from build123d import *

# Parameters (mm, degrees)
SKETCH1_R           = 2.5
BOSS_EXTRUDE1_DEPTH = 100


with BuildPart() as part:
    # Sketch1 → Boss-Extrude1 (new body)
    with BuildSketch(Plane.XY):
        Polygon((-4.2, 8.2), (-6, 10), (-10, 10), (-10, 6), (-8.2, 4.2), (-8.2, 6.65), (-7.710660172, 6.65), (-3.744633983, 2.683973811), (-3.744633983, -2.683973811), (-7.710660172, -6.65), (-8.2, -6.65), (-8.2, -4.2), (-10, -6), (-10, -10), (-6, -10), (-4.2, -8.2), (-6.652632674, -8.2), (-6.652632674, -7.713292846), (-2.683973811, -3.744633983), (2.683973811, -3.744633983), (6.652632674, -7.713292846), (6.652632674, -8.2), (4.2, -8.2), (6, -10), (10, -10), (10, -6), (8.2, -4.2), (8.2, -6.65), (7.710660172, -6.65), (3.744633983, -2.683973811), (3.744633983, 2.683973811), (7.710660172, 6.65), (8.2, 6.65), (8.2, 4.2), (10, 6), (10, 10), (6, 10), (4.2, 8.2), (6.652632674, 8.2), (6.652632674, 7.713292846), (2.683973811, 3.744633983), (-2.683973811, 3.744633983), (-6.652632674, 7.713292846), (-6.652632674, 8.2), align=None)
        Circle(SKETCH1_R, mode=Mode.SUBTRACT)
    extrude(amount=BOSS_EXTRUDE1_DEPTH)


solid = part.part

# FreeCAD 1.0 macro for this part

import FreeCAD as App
import Part
import Sketcher


def add_polygon(sketch, points):
    """Adds a closed chain of lines whose ends are joined by coincident constraints."""
    first, n = sketch.GeometryCount, len(points)
    for a, b in zip(points, points[1:] + points[:1]):
        sketch.addGeometry(Part.LineSegment(App.Vector(*a, 0), App.Vector(*b, 0)), False)
    for i in range(n):
        sketch.addConstraint(Sketcher.Constraint("Coincident", first + i, 2, first + (i + 1) % n, 1))

doc = App.newDocument("Part")
body = doc.addObject("PartDesign::Body", "Body")

sketch1 = doc.addObject("Sketcher::SketchObject", "Sketch")
body.addObject(sketch1)
sketch1.AttachmentSupport = (doc.XY_Plane, [""])
sketch1.MapMode = "FlatFace"
add_polygon(sketch1, [(-4.2, 8.2), (-6, 10), (-10, 10), (-10, 6), (-8.2, 4.2), (-8.2, 6.65), (-7.71, 6.65), (-3.74, 2.68), (-3.74, -2.68), (-7.71, -6.65), (-8.2, -6.65), (-8.2, -4.2), (-10, -6), (-10, -10), (-6, -10), (-4.2, -8.2), (-6.65, -8.2), (-6.65, -7.71), (-2.68, -3.74), (2.68, -3.74), (6.65, -7.71), (6.65, -8.2), (4.2, -8.2), (6, -10), (10, -10), (10, -6), (8.2, -4.2), (8.2, -6.65), (7.71, -6.65), (3.74, -2.68), (3.74, 2.68), (7.71, 6.65), (8.2, 6.65), (8.2, 4.2), (10, 6), (10, 10), (6, 10), (4.2, 8.2), (6.65, 8.2), (6.65, 7.71), (2.68, 3.74), (-2.68, 3.74), (-6.65, 7.71), (-6.65, 8.2)])
sketch1.addGeometry(Part.Circle(App.Vector(0, 0, 0), App.Vector(0, 0, 1), 2.5), False)
sketch1.addConstraint(Sketcher.Constraint("Horizontal", 1))
sketch1.addConstraint(Sketcher.Constraint("Vertical", 2))
sketch1.addConstraint(Sketcher.Constraint("Vertical", 4))
sketch1.addConstraint(Sketcher.Constraint("Horizontal", 5))
sketch1.addConstraint(Sketcher.Constraint("Vertical", 7))
sketch1.addConstraint(Sketcher.Constraint("Horizontal", 9))
sketch1.addConstraint(Sketcher.Constraint("Vertical", 10))
sketch1.addConstraint(Sketcher.Constraint("Vertical", 12))
sketch1.addConstraint(Sketcher.Constraint("Horizontal", 13))
sketch1.addConstraint(Sketcher.Constraint("Horizontal", 15))
sketch1.addConstraint(Sketcher.Constraint("Vertical", 16))
sketch1.addConstraint(Sketcher.Constraint("Horizontal", 18))
sketch1.addConstraint(Sketcher.Constraint("Vertical", 20))
sketch1.addConstraint(Sketcher.Constraint("Horizontal", 21))
sketch1.addConstraint(Sketcher.Constraint("Horizontal", 23))
sketch1.addConstraint(Sketcher.Constraint("Vertical", 24))
sketch1.addConstraint(Sketcher.Constraint("Vertical", 26))
sketch1.addConstraint(Sketcher.Constraint("Horizontal", 27))
sketch1.addConstraint(Sketcher.Constraint("Vertical", 29))
sketch1.addConstraint(Sketcher.Constraint("Horizontal", 31))
sketch1.addConstraint(Sketcher.Constraint("Vertical", 32))
sketch1.addConstraint(Sketcher.Constraint("Vertical", 34))
sketch1.addConstraint(Sketcher.Constraint("Horizontal", 35))
sketch1.addConstraint(Sketcher.Constraint("Horizontal", 37))
sketch1.addConstraint(Sketcher.Constraint("Vertical", 38))
sketch1.addConstraint(Sketcher.Constraint("Horizontal", 40))
sketch1.addConstraint(Sketcher.Constraint("Vertical", 42))
sketch1.addConstraint(Sketcher.Constraint("Horizontal", 43))
sketch1.addConstraint(Sketcher.Constraint("Coincident", 44, 3, -1, 1))
sketch1.addConstraint(Sketcher.Constraint("Symmetric", 0, 2, 22, 2, -1, 1))
sketch1.addConstraint(Sketcher.Constraint("Symmetric", 2, 2, 24, 2, -1, 1))
sketch1.addConstraint(Sketcher.Constraint("Symmetric", 3, 2, 25, 2, -1, 1))
sketch1.addConstraint(Sketcher.Constraint("Symmetric", 5, 2, 27, 2, -1, 1))
sketch1.addConstraint(Sketcher.Constraint("Symmetric", 6, 2, 28, 2, -1, 1))
sketch1.addConstraint(Sketcher.Constraint("Symmetric", 8, 2, 30, 2, -1, 1))
sketch1.addConstraint(Sketcher.Constraint("Symmetric", 10, 2, 32, 2, -1, 1))
sketch1.addConstraint(Sketcher.Constraint("Symmetric", 11, 2, 33, 2, -1, 1))
sketch1.addConstraint(Sketcher.Constraint("Symmetric", 13, 2, 35, 2, -1, 1))
sketch1.addConstraint(Sketcher.Constraint("Symmetric", 14, 2, 36, 2, -1, 1))
sketch1.addConstraint(Sketcher.Constraint("Symmetric", 16, 2, 38, 2, -1, 1))
sketch1.addConstraint(Sketcher.Constraint("Symmetric", 17, 2, 39, 2, -1, 1))
sketch1.addConstraint(Sketcher.Constraint("Symmetric", 19, 2, 41, 2, -1, 1))
sketch1.addConstraint(Sketcher.Constraint("Symmetric", 21, 2, 43, 2, -1, 1))
sketch1.addConstraint(Sketcher.Constraint("Symmetric", 16, 2, 19, 2, -2))
sketch1.addConstraint(Sketcher.Constraint("Symmetric", 14, 2, 21, 2, -2))
sketch1.addConstraint(Sketcher.Constraint("Symmetric", 13, 2, 22, 2, -2))
sketch1.addConstraint(Sketcher.Constraint("Symmetric", 11, 2, 24, 2, -2))
sketch1.addConstraint(Sketcher.Constraint("Symmetric", 10, 2, 25, 2, -2))
sketch1.addConstraint(Sketcher.Constraint("Symmetric", 8, 2, 27, 2, -2))
sketch1.addConstraint(Sketcher.Constraint("Parallel", 0, 3))
sketch1.addConstraint(Sketcher.Constraint("Parallel", 3, 6))
sketch1.addConstraint(Sketcher.Constraint("Perpendicular", 6, 8))
sketch1.addConstraint(Sketcher.Constraint("Parallel", 8, 11))
sketch1.addConstraint(Sketcher.Constraint("Parallel", 14, 17))
sketch1.addConstraint(Sketcher.Constraint("Perpendicular", 17, 19))
sketch1.addConstraint(Sketcher.Constraint("Perpendicular", 28, 30))
sketch1.addConstraint(Sketcher.Constraint("Perpendicular", 39, 41))
sketch1.addConstraint(Sketcher.Constraint("Equal", 35, 2))
sketch1.addConstraint(Sketcher.Constraint("Equal", 40, 7))
sketch1.addConstraint(Sketcher.Constraint("Equal", 0, 3))
sketch1.addConstraint(Sketcher.Constraint("Diameter", 44, 5.0))
sketch1.addConstraint(Sketcher.Constraint("DistanceX", 1, 2, 1, 1, 4.0))
sketch1.addConstraint(Sketcher.Constraint("DistanceX", 0, 2, -1, 1, 6.0))
sketch1.addConstraint(Sketcher.Constraint("DistanceY", -1, 1, 0, 2, 10.0))
sketch1.addConstraint(Sketcher.Constraint("DistanceY", 4, 1, 4, 2, 2.45))
sketch1.addConstraint(Sketcher.Constraint("DistanceX", 3, 2, -1, 1, 8.2))
sketch1.addConstraint(Sketcher.Constraint("DistanceX", 5, 1, 5, 2, 0.48934))
sketch1.addConstraint(Sketcher.Constraint("Distance", 6, 5.608808))
sketch1.addConstraint(Sketcher.Constraint("Distance", 17, 5.612531))
sketch1.addConstraint(Sketcher.Constraint("DistanceY", 16, 1, 16, 2, 0.486707))
pad1 = doc.addObject("PartDesign::Pad", "Pad")
body.addObject(pad1)
pad1.Profile = sketch1
pad1.Length = 100

doc.recompute()
